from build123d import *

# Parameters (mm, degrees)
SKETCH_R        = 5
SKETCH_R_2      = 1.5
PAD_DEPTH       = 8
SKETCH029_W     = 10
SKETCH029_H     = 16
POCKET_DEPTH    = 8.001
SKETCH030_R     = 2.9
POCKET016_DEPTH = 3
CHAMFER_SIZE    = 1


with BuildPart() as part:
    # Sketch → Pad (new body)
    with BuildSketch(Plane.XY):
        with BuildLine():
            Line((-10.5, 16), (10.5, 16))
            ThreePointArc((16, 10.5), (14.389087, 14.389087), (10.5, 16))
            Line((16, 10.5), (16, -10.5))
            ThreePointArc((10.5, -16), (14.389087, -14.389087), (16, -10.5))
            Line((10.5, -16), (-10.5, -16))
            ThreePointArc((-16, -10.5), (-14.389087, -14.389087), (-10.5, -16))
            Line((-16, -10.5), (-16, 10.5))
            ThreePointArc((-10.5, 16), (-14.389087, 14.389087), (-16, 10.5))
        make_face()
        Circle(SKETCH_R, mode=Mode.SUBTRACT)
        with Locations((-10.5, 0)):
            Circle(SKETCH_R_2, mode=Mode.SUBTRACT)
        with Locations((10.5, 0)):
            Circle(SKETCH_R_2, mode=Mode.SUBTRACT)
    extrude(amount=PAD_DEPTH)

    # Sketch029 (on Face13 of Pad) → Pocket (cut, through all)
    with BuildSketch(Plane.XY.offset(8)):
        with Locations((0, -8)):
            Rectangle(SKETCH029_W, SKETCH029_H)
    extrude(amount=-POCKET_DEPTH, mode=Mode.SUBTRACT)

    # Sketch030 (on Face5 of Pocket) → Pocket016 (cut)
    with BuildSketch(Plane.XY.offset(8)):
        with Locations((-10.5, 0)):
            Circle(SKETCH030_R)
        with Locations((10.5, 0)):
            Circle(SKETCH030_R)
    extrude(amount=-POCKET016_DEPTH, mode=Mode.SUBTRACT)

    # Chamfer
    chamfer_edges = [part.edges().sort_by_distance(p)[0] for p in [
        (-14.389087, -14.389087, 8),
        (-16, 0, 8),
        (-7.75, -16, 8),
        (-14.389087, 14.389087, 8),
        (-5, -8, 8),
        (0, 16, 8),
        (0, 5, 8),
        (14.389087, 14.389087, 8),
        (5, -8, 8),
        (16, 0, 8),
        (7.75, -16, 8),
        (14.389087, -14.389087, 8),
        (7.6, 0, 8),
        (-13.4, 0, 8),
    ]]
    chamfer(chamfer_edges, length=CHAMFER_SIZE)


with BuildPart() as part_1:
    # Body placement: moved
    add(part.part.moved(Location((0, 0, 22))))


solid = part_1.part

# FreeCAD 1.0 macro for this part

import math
import FreeCAD as App
import Part
import Sketcher
from FreeCAD import Vector


def edges_at(feature, points):
    """Names of the edges that pass closest to the given points."""
    edges = feature.Shape.Edges
    near = lambda p: min(range(len(edges)), key=lambda i: edges[i].distToShape(Part.Vertex(*p))[0])
    return sorted({f"Edge{near(p) + 1}" for p in points})

doc = App.newDocument("Part")
params = doc.addObject("Spreadsheet::Sheet", "Params")
for row, (alias, value) in enumerate([
    ("sketch1_diameter", "3 mm"),
    ("sketch1_diameter2", "10 mm"),
    ("sketch1_radius", "5.500001 mm"),
    ("sketch1_width", "21 mm"),
    ("pad1_length", "8 mm"),
    ("sketch2_width", "10 mm"),
    ("sketch2_height", "16 mm"),
    ("sketch3_diameter", "5.8 mm"),
    ("pocket2_length", "3 mm"),
    ("chamfer_size", "1 mm"),
], start=1):
    params.set(f"A{row}", alias)
    params.set(f"B{row}", "=" + value)
    params.setAlias(f"B{row}", alias)

body = doc.addObject("PartDesign::Body", "Body")

# Sketch on XY plane
sketch1 = body.newObject("Sketcher::SketchObject", "Sketch")
sketch1.AttachmentSupport = (doc.getObject("XY_Plane"), [""])
sketch1.MapMode = "FlatFace"
sketch1.addGeometry([
    Part.LineSegment(Vector(10.5, 16, 0), Vector(-10.5, 16, 0)),  # 0
    Part.ArcOfCircle(Part.Circle(Vector(-10.5, 10.5, 0), Vector(0, 0, 1), 5.5), math.radians(90), math.radians(180)),  # 1
    Part.LineSegment(Vector(-16, 10.5, 0), Vector(-16, -10.5, 0)),  # 2
    Part.ArcOfCircle(Part.Circle(Vector(-10.5, -10.5, 0), Vector(0, 0, 1), 5.5), math.radians(-180), math.radians(-90)),  # 3
    Part.LineSegment(Vector(-10.5, -16, 0), Vector(10.5, -16, 0)),  # 4
    Part.ArcOfCircle(Part.Circle(Vector(10.5, -10.5, 0), Vector(0, 0, 1), 5.5), math.radians(-90), math.radians(0)),  # 5
    Part.LineSegment(Vector(16, -10.5, 0), Vector(16, 10.5, 0)),  # 6
    Part.ArcOfCircle(Part.Circle(Vector(10.5, 10.5, 0), Vector(0, 0, 1), 5.5), math.radians(0), math.radians(90)),  # 7
    Part.Circle(Vector(10.5, 0, 0), Vector(0, 0, 1), 1.5),  # 8
    Part.Circle(Vector(0, 0, 0), Vector(0, 0, 1), 5),  # 9
    Part.Circle(Vector(-10.5, 0, 0), Vector(0, 0, 1), 1.5),  # 10
], False)
sketch1.addConstraint([
    Sketcher.Constraint("Tangent", 0, 2, 1, 1),
    Sketcher.Constraint("Tangent", 1, 2, 2, 1),
    Sketcher.Constraint("Tangent", 2, 2, 3, 1),
    Sketcher.Constraint("Tangent", 3, 2, 4, 1),
    Sketcher.Constraint("Tangent", 4, 2, 5, 1),
    Sketcher.Constraint("Tangent", 5, 2, 6, 1),
    Sketcher.Constraint("Tangent", 6, 2, 7, 1),
    Sketcher.Constraint("Tangent", 7, 2, 0, 1),
    Sketcher.Constraint("Horizontal", 0),
    Sketcher.Constraint("Vertical", 2),
    Sketcher.Constraint("Horizontal", 4),
    Sketcher.Constraint("Vertical", 6),
    Sketcher.Constraint("Coincident", 9, 3, -1, 1),
    Sketcher.Constraint("Equal", 1, 3),
    Sketcher.Constraint("Equal", 3, 5),
    Sketcher.Constraint("Equal", 5, 7),
    Sketcher.Constraint("Equal", 8, 10),
    Sketcher.Constraint("Symmetric", 1, 3, 5, 3, -1, 1),
    Sketcher.Constraint("Symmetric", 8, 3, 10, 3, -1, 1),
    Sketcher.Constraint("PointOnObject", 8, 3, -1),
    Sketcher.Constraint("Vertical", 7, 3, 8, 3),
    Sketcher.Constraint("Equal", 4, 2),
    Sketcher.Constraint("Diameter", 8, 3.0),
    Sketcher.Constraint("Diameter", 9, 10.0),
    Sketcher.Constraint("Radius", 1, 5.500001),
    Sketcher.Constraint("DistanceX", 0, 2, 0, 1, 21.0),
])
sketch1.setExpression("Constraints[22]", "Params.sketch1_diameter")
sketch1.setExpression("Constraints[23]", "Params.sketch1_diameter2")
sketch1.setExpression("Constraints[24]", "Params.sketch1_radius")
sketch1.setExpression("Constraints[25]", "Params.sketch1_width")
pad1 = body.newObject("PartDesign::Pad", "Pad")
pad1.Profile = sketch1
pad1.setExpression("Length", "Params.pad1_length")

# Sketch on XY plane
sketch2 = body.newObject("Sketcher::SketchObject", "Sketch001")
sketch2.AttachmentSupport = (doc.getObject("XY_Plane"), [""])
sketch2.MapMode = "FlatFace"
sketch2.AttachmentOffset = App.Placement(Vector(0, 0, 8), App.Rotation())
sketch2.addGeometry([
    Part.LineSegment(Vector(-5, 0, 0), Vector(-5, -16, 0)),
    Part.LineSegment(Vector(-5, -16, 0), Vector(5, -16, 0)),
    Part.LineSegment(Vector(5, -16, 0), Vector(5, 0, 0)),
    Part.LineSegment(Vector(5, 0, 0), Vector(-5, 0, 0)),
], False)
sketch2.addConstraint([
    Sketcher.Constraint("Coincident", 0, 2, 1, 1),
    Sketcher.Constraint("Coincident", 1, 2, 2, 1),
    Sketcher.Constraint("Coincident", 2, 2, 3, 1),
    Sketcher.Constraint("Coincident", 3, 2, 0, 1),
    Sketcher.Constraint("Vertical", 0),
    Sketcher.Constraint("Horizontal", 1),
    Sketcher.Constraint("Vertical", 2),
    Sketcher.Constraint("Horizontal", 3),
    Sketcher.Constraint("Symmetric", 2, 2, 3, 2, -1, 1),
    Sketcher.Constraint("DistanceX", 1, 1, 1, 2, 10.0),
    Sketcher.Constraint("DistanceY", 0, 2, 0, 1, 16.0),
])
sketch2.setExpression("Constraints[9]", "Params.sketch2_width")
sketch2.setExpression("Constraints[10]", "Params.sketch2_height")
pocket1 = body.newObject("PartDesign::Pocket", "Pocket")
pocket1.Profile = sketch2
pocket1.Type = "ThroughAll"

# Sketch on XY plane
sketch3 = body.newObject("Sketcher::SketchObject", "Sketch002")
sketch3.AttachmentSupport = (doc.getObject("XY_Plane"), [""])
sketch3.MapMode = "FlatFace"
sketch3.AttachmentOffset = App.Placement(Vector(0, 0, 8), App.Rotation())
sketch3.addGeometry([
    Part.Circle(Vector(-10.5, 0, 0), Vector(0, 0, 1), 2.9),
    Part.Circle(Vector(10.5, 0, 0), Vector(0, 0, 1), 2.9),
], False)
sketch3.addConstraint([
    Sketcher.Constraint("Equal", 0, 1),
    Sketcher.Constraint("Symmetric", 0, 3, 1, 3, -1, 1),
    Sketcher.Constraint("PointOnObject", 0, 3, -1),
    Sketcher.Constraint("Diameter", 0, 5.8),
    Sketcher.Constraint("DistanceX", 0, 3, 1, 3, 21.0),
])
sketch3.setExpression("Constraints[3]", "Params.sketch3_diameter")
pocket2 = body.newObject("PartDesign::Pocket", "Pocket001")
pocket2.Profile = sketch3
pocket2.setExpression("Length", "Params.pocket2_length")
doc.recompute()

chamfer = body.newObject("PartDesign::Chamfer", "Chamfer")
chamfer.Base = (pocket2, edges_at(pocket2, [
    (-14.389, -14.389, 8),
    (-16, 0, 8),
    (-7.75, -16, 8),
    (-14.389, 14.389, 8),
    (-5, -8, 8),
    (0, 16, 8),
    (0, 5, 8),
    (14.389, 14.389, 8),
    (5, -8, 8),
    (16, 0, 8),
    (7.75, -16, 8),
    (14.389, -14.389, 8),
    (7.6, 0, 8),
    (-13.4, 0, 8),
]))
chamfer.setExpression("Size", "Params.chamfer_size")
body2 = doc.addObject("PartDesign::Body", "Body001")
doc.recompute()

body.Placement = App.Placement(Vector(0, 0, 22), App.Rotation(Vector(0, 0, 1), 0))
boolean = body2.newObject("PartDesign::Boolean", "Boolean")
boolean.Type = "Fuse"
boolean.addObjects([body])

doc.recompute()
